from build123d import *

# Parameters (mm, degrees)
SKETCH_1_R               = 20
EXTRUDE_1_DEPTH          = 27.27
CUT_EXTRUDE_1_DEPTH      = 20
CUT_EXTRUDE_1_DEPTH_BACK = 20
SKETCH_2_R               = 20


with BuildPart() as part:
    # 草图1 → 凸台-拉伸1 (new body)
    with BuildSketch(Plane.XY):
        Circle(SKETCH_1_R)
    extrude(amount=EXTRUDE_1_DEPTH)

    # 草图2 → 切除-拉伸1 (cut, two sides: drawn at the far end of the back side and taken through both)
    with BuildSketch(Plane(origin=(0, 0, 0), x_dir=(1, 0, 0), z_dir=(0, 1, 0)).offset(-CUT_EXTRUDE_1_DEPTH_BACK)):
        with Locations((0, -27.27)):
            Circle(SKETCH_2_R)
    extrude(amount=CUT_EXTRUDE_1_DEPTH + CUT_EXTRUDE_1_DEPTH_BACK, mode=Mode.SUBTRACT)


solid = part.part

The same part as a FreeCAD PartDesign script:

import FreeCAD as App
import Part
import Sketcher
Q = App.Units.Quantity

doc = App.newDocument("Part")
body = doc.addObject("PartDesign::Body", "Body")

sketch1 = body.newObject("Sketcher::SketchObject", "Sketch")
sketch1.AttachmentSupport = (doc.getObject("XY_Plane"), [""])
sketch1.MapMode = "FlatFace"
sketch1.addGeometry(Part.Circle(App.Vector(0, 0, 0), App.Vector(0, 0, 1), 20), False)
sketch1.addConstraint([
    Sketcher.Constraint("Coincident", 0, 3, -1, 1),
    Sketcher.Constraint("Diameter", 0, Q("40 mm")),
])
pad1 = body.newObject("PartDesign::Pad", "Pad")
pad1.Profile = sketch1
pad1.Length = 27.27

sketch2 = body.newObject("Sketcher::SketchObject", "Sketch001")
sketch2.AttachmentSupport = (doc.getObject("XZ_Plane"), [""])
sketch2.MapMode = "FlatFace"
sketch2.addGeometry(Part.Circle(App.Vector(0, 27, 0), App.Vector(0, 0, 1), 20), False)
sketch2.addConstraint([
    Sketcher.Constraint("PointOnObject", 0, 3, -2),
    Sketcher.Constraint("Diameter", 0, Q("40 mm")),
    Sketcher.Constraint("DistanceY", -1, 1, 0, 3, Q("27.27 mm")),
])
pocket1 = body.newObject("PartDesign::Pocket", "Pocket")
pocket1.Profile = sketch2
pocket1.Type = "ThroughAll"
pocket1.Midplane = True

doc.recompute()
